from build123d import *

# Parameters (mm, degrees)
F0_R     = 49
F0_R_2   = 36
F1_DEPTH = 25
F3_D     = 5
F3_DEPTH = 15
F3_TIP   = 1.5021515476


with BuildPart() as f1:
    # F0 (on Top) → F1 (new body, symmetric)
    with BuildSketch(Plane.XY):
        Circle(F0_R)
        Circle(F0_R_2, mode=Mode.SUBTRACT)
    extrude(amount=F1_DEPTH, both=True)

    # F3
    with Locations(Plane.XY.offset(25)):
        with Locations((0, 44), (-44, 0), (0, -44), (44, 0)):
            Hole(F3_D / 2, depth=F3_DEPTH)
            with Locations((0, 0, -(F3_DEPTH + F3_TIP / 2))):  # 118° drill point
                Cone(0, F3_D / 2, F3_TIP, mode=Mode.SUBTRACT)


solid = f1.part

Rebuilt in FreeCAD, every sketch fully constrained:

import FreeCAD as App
import Part
import Sketcher
Q = App.Units.Quantity

doc = App.newDocument("Part")
body = doc.addObject("PartDesign::Body", "Body")

# Sketch on XY plane
sketch1 = doc.addObject("Sketcher::SketchObject", "Sketch")
body.addObject(sketch1)
sketch1.AttachmentSupport = (doc.XY_Plane, [""])
sketch1.MapMode = "FlatFace"
sketch1.addGeometry([
    Part.Circle(App.Vector(0, 0, 0), App.Vector(0, 0, 1), 49),
    Part.Circle(App.Vector(0, 0, 0), App.Vector(0, 0, 1), 36),
], False)
sketch1.addConstraint([
    Sketcher.Constraint("Coincident", 0, 3, -1, 1),
    Sketcher.Constraint("Coincident", 1, 3, -1, 1),
    Sketcher.Constraint("Diameter", 0, Q("98 mm")),
    Sketcher.Constraint("Diameter", 1, Q("72 mm")),
])
pad1 = doc.addObject("PartDesign::Pad", "Pad")
body.addObject(pad1)
pad1.Profile = sketch1
pad1.Length = 50
pad1.Midplane = True

# Sketch on XY plane
sketch2 = doc.addObject("Sketcher::SketchObject", "Sketch001")
body.addObject(sketch2)
sketch2.AttachmentSupport = (doc.XY_Plane, [""])
sketch2.MapMode = "FlatFace"
sketch2.AttachmentOffset = App.Placement(App.Vector(0, 0, 25), App.Rotation())
sketch2.addGeometry([
    Part.Circle(App.Vector(0, 44, 0), App.Vector(0, 0, 1), 2.5),
    Part.Circle(App.Vector(-44, 0, 0), App.Vector(0, 0, 1), 2.5),
    Part.Circle(App.Vector(0, -44, 0), App.Vector(0, 0, 1), 2.5),
    Part.Circle(App.Vector(44, 0, 0), App.Vector(0, 0, 1), 2.5),
], False)
sketch2.addConstraint([
    Sketcher.Constraint("Equal", 0, 1),
    Sketcher.Constraint("Equal", 1, 2),
    Sketcher.Constraint("Equal", 2, 3),
    Sketcher.Constraint("Symmetric", 0, 3, 2, 3, -1, 1),
    Sketcher.Constraint("Symmetric", 1, 3, 3, 3, -1, 1),
    Sketcher.Constraint("PointOnObject", 0, 3, -2),
    Sketcher.Constraint("PointOnObject", 1, 3, -1),
    Sketcher.Constraint("Diameter", 0, Q("5 mm")),
    Sketcher.Constraint("DistanceY", -1, 1, 0, 3, Q("44 mm")),
    Sketcher.Constraint("DistanceX", 1, 3, -1, 1, Q("44 mm")),
])
doc.recompute()
hole = doc.addObject("PartDesign::Hole", "Hole")
body.addObject(hole)
hole.Profile = sketch2
hole.ThreadType = "None"
hole.Diameter = 5
hole.DepthType = "Dimension"
hole.Depth = 15
hole.DrillPoint = "Angled"
hole.DrillPointAngle = 118

doc.recompute()
